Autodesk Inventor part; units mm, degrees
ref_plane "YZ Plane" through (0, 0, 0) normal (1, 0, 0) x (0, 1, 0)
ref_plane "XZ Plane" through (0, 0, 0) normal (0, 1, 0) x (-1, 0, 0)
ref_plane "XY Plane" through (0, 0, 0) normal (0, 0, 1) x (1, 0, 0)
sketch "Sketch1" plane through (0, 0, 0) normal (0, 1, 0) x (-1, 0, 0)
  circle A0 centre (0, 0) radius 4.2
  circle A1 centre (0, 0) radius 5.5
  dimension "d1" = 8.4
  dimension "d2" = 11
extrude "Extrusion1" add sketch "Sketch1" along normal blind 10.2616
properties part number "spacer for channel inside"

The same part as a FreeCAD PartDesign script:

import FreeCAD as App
import Part
import Sketcher

V = App.Vector

doc = App.newDocument("Part")
body = doc.addObject("PartDesign::Body", "Body")

# Sketch on XZ plane
sketch1 = body.newObject("Sketcher::SketchObject", "Sketch")
sketch1.AttachmentSupport = (doc.getObject("XZ_Plane"), [""])
sketch1.MapMode = "FlatFace"
sketch1.addGeometry([
    Part.Circle(V(0, 0, 0), V(0, 0, 1), 5.5),
    Part.Circle(V(0, 0, 0), V(0, 0, 1), 4.2),
], False)
sketch1.addConstraint([
    Sketcher.Constraint("Coincident", 0, 3, -1, 1),
    Sketcher.Constraint("Coincident", 1, 3, -1, 1),
    Sketcher.Constraint("Diameter", 0, 11.0),
    Sketcher.Constraint("Diameter", 1, 8.4),
])
pad1 = body.newObject("PartDesign::Pad", "Pad")
pad1.Profile = sketch1
pad1.Length = 10.2616
pad1.Reversed = True

doc.recompute()
